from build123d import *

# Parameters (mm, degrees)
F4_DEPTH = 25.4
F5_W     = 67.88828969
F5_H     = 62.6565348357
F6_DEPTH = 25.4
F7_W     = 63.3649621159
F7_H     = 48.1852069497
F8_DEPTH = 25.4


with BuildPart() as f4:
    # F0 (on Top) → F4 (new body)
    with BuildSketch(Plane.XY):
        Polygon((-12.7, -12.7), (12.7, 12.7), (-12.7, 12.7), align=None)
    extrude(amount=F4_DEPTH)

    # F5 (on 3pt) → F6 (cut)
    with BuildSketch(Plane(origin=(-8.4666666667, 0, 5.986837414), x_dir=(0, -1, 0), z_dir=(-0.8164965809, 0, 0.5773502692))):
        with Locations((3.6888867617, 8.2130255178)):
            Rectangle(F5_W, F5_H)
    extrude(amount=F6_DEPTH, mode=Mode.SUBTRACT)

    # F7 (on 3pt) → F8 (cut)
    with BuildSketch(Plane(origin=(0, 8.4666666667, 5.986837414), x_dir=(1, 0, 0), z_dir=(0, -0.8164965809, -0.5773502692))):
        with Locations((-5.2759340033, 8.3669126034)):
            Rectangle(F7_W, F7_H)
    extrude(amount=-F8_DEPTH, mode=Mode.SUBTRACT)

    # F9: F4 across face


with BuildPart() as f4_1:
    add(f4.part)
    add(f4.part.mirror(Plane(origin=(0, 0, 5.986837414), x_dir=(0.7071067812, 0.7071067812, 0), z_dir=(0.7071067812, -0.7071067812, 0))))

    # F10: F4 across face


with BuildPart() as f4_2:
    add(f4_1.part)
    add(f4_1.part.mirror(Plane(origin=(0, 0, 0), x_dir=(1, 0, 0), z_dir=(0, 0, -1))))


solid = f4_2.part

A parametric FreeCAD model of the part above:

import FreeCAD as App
import Part
import Sketcher
Q = App.Units.Quantity


def add_polygon(sketch, points):
    """Adds a closed chain of lines whose ends are joined by coincident constraints."""
    first, n = sketch.GeometryCount, len(points)
    for a, b in zip(points, points[1:] + points[:1]):
        sketch.addGeometry(Part.LineSegment(App.Vector(*a, 0), App.Vector(*b, 0)), False)
    for i in range(n):
        sketch.addConstraint(Sketcher.Constraint("Coincident", first + i, 2, first + (i + 1) % n, 1))

doc = App.newDocument("Part")
body = doc.addObject("PartDesign::Body", "Body")

# Sketch on XY plane
sketch1 = body.newObject("Sketcher::SketchObject", "Sketch")
sketch1.AttachmentSupport = (doc.getObject("XY_Plane"), [""])
sketch1.MapMode = "FlatFace"
add_polygon(sketch1, [(-13, -13), (13, 13), (-13, 13)])  # lines 0-2
sketch1.addConstraint([
    Sketcher.Constraint("Horizontal", 1),
    Sketcher.Constraint("Vertical", 2),
    Sketcher.Constraint("Symmetric", 0, 2, 2, 2, -1, 1),
    Sketcher.Constraint("Equal", 1, 2),
    Sketcher.Constraint("DistanceX", 1, 2, 1, 1, Q("1 in")),
])
pad1 = body.newObject("PartDesign::Pad", "Pad")
pad1.Profile = sketch1
pad1.Length = Q("1 in")

# Sketch on an angled plane
sketch2 = body.newObject("Sketcher::SketchObject", "Sketch001")
sketch2.Placement = App.Placement(App.Vector(-8.466667, 0, 5.986837), App.Rotation(App.Vector(0, -1, 0), App.Vector(0.577350269, 0, 0.816496581), App.Vector(-0.816496581, 0, 0.577350269), "ZXY"))
add_polygon(sketch2, [(-30, 40), (-30, -23), (38, -23), (38, 40)])  # lines 0-3
sketch2.addConstraint([
    Sketcher.Constraint("Vertical", 0),
    Sketcher.Constraint("Horizontal", 1),
    Sketcher.Constraint("Vertical", 2),
    Sketcher.Constraint("Horizontal", 3),
    Sketcher.Constraint("DistanceX", 1, 1, 1, 2, 67.88829),
    Sketcher.Constraint("DistanceY", 0, 2, 0, 1, 62.656535),
    Sketcher.Constraint("DistanceX", 0, 2, -1, 1, 30.255258),
    Sketcher.Constraint("DistanceY", 0, 2, -1, 1, 23.115242),
])
pocket1 = body.newObject("PartDesign::Pocket", "Pocket")
pocket1.Profile = sketch2
pocket1.Length = Q("1 in")
pocket1.Reversed = True

# Sketch on an angled plane
sketch3 = body.newObject("Sketcher::SketchObject", "Sketch002")
sketch3.Placement = App.Placement(App.Vector(0, 8.466667, 5.986837), App.Rotation(App.Vector(1, 0, 0), App.Vector(0, -0.577350269, 0.816496581), App.Vector(0, -0.816496581, -0.577350269), "ZXY"))
add_polygon(sketch3, [(-37, 32), (-37, -16), (26, -16), (26, 32)])  # lines 0-3
sketch3.addConstraint([
    Sketcher.Constraint("Vertical", 0),
    Sketcher.Constraint("Horizontal", 1),
    Sketcher.Constraint("Vertical", 2),
    Sketcher.Constraint("Horizontal", 3),
    Sketcher.Constraint("DistanceX", 1, 1, 1, 2, 63.364962),
    Sketcher.Constraint("DistanceY", 0, 2, 0, 1, 48.185207),
    Sketcher.Constraint("DistanceY", 0, 2, -1, 1, 15.725691),
    Sketcher.Constraint("DistanceX", 0, 2, -1, 1, 36.958415),
])
pocket2 = body.newObject("PartDesign::Pocket", "Pocket001")
pocket2.Profile = sketch3
pocket2.Length = Q("1 in")
body2 = doc.addObject("PartDesign::Body", "Body001")
doc.recompute()

body2.BaseFeature = body
doc.recompute()

mirroring = doc.addObject("Part::Mirroring", "Mirroring")
mirroring.Source = body
mirroring.Base = App.Vector(0, 0, 5.986837)
mirroring.Normal = App.Vector(0.707106781, -0.707106781, 0)
body3 = doc.addObject("PartDesign::Body", "Body002")
body3.BaseFeature = mirroring
boolean = body2.newObject("PartDesign::Boolean", "Boolean")
boolean.Type = "Fuse"
boolean.addObjects([body3])
doc.recompute()
body4 = doc.addObject("PartDesign::Body", "Body003")
doc.recompute()

body4.BaseFeature = body2
doc.recompute()

mirroring2 = doc.addObject("Part::Mirroring", "Mirroring001")
mirroring2.Source = body2
mirroring2.Base = App.Vector(0, 0, 0)
mirroring2.Normal = App.Vector(0, 0, -1)
body5 = doc.addObject("PartDesign::Body", "Body004")
body5.BaseFeature = mirroring2
boolean2 = body4.newObject("PartDesign::Boolean", "Boolean001")
boolean2.Type = "Fuse"
boolean2.addObjects([body5])
doc.recompute()
mirroring.Visibility = False
mirroring2.Visibility = False

doc.recompute()
